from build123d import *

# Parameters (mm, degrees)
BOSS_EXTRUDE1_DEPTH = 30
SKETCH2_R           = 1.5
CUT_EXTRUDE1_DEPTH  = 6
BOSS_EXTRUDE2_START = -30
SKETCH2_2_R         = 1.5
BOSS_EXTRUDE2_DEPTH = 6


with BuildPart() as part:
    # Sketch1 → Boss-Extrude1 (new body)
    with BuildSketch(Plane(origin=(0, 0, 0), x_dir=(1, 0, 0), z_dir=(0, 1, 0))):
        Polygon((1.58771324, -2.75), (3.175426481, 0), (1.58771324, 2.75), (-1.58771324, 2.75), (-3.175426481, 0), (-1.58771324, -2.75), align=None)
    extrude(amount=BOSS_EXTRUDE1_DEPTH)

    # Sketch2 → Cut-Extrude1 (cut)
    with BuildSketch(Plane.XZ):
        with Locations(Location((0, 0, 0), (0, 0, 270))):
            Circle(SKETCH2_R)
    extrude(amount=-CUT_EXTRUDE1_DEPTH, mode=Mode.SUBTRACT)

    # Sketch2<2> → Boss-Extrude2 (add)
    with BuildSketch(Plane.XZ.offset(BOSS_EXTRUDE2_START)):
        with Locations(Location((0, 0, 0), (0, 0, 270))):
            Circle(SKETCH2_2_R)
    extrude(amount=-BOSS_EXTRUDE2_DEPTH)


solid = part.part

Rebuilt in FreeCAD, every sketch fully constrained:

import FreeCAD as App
import Part
import Sketcher

V = App.Vector
Q = App.Units.Quantity

doc = App.newDocument("Part")
body = doc.addObject("PartDesign::Body", "Body")

# Sketch on XZ plane
sketch1 = body.newObject("Sketcher::SketchObject", "Sketch")
sketch1.AttachmentSupport = (doc.getObject("XZ_Plane"), [""])
sketch1.MapMode = "FlatFace"
sketch1.addGeometry([
    Part.LineSegment(V(1.587713, 2.75, 0), V(3.175426, 0, 0)),  # 0
    Part.LineSegment(V(3.175426, 0, 0), V(1.587713, -2.75, 0)),  # 1
    Part.LineSegment(V(1.587713, -2.75, 0), V(-1.587713, -2.75, 0)),  # 2
    Part.LineSegment(V(-1.587713, -2.75, 0), V(-3.175426, 0, 0)),  # 3
    Part.LineSegment(V(-3.175426, 0, 0), V(-1.587713, 2.75, 0)),  # 4
    Part.LineSegment(V(-1.587713, 2.75, 0), V(1.587713, 2.75, 0)),  # 5
], False)
sketch1.addConstraint([
    Sketcher.Constraint("Coincident", 0, 2, 1, 1),
    Sketcher.Constraint("Coincident", 1, 2, 2, 1),
    Sketcher.Constraint("Coincident", 2, 2, 3, 1),
    Sketcher.Constraint("Coincident", 3, 2, 4, 1),
    Sketcher.Constraint("Coincident", 4, 2, 5, 1),
    Sketcher.Constraint("Coincident", 5, 2, 0, 1),
    Sketcher.Constraint("Horizontal", 2),
    Sketcher.Constraint("Horizontal", 5),
    Sketcher.Constraint("Symmetric", 0, 2, 3, 2, -1, 1),
    Sketcher.Constraint("Symmetric", 1, 2, 4, 2, -1, 1),
    Sketcher.Constraint("PointOnObject", 0, 2, -1),
    Sketcher.Constraint("Parallel", 0, 3),
    Sketcher.Constraint("Vertical", 2, 2, 4, 2),
    Sketcher.Constraint("Angle", 0, Q("-60 deg")),
    Sketcher.Constraint("DistanceY", 2, 2, 4, 2, 5.5),
    Sketcher.Constraint("DistanceX", 2, 2, 2, 1, 3.175426),
])
pad1 = body.newObject("PartDesign::Pad", "Pad")
pad1.Profile = sketch1
pad1.Length = 30
pad1.Reversed = True

# Sketch on XZ plane
sketch2 = body.newObject("Sketcher::SketchObject", "Sketch001")
sketch2.AttachmentSupport = (doc.getObject("XZ_Plane"), [""])
sketch2.MapMode = "FlatFace"
sketch2.addGeometry(Part.Circle(V(0, 0, 0), V(0, 0, 1), 1.5), False)
sketch2.addConstraint([
    Sketcher.Constraint("Coincident", 0, 3, -1, 1),
    Sketcher.Constraint("Diameter", 0, 3.0),
])
pocket1 = body.newObject("PartDesign::Pocket", "Pocket")
pocket1.Profile = sketch2
pocket1.Length = 6

# Sketch on XZ plane
sketch3 = body.newObject("Sketcher::SketchObject", "Sketch002")
sketch3.AttachmentSupport = (doc.getObject("XZ_Plane"), [""])
sketch3.MapMode = "FlatFace"
sketch3.AttachmentOffset = App.Placement(V(0, 0, -30), App.Rotation())
sketch3.addGeometry(Part.Circle(V(0, 0, 0), V(0, 0, 1), 1.5), False)
sketch3.addConstraint([
    Sketcher.Constraint("Coincident", 0, 3, -1, 1),
    Sketcher.Constraint("Diameter", 0, 3.0),
])
pad2 = body.newObject("PartDesign::Pad", "Pad001")
pad2.Profile = sketch3
pad2.Length = 6
pad2.Reversed = True

doc.recompute()
